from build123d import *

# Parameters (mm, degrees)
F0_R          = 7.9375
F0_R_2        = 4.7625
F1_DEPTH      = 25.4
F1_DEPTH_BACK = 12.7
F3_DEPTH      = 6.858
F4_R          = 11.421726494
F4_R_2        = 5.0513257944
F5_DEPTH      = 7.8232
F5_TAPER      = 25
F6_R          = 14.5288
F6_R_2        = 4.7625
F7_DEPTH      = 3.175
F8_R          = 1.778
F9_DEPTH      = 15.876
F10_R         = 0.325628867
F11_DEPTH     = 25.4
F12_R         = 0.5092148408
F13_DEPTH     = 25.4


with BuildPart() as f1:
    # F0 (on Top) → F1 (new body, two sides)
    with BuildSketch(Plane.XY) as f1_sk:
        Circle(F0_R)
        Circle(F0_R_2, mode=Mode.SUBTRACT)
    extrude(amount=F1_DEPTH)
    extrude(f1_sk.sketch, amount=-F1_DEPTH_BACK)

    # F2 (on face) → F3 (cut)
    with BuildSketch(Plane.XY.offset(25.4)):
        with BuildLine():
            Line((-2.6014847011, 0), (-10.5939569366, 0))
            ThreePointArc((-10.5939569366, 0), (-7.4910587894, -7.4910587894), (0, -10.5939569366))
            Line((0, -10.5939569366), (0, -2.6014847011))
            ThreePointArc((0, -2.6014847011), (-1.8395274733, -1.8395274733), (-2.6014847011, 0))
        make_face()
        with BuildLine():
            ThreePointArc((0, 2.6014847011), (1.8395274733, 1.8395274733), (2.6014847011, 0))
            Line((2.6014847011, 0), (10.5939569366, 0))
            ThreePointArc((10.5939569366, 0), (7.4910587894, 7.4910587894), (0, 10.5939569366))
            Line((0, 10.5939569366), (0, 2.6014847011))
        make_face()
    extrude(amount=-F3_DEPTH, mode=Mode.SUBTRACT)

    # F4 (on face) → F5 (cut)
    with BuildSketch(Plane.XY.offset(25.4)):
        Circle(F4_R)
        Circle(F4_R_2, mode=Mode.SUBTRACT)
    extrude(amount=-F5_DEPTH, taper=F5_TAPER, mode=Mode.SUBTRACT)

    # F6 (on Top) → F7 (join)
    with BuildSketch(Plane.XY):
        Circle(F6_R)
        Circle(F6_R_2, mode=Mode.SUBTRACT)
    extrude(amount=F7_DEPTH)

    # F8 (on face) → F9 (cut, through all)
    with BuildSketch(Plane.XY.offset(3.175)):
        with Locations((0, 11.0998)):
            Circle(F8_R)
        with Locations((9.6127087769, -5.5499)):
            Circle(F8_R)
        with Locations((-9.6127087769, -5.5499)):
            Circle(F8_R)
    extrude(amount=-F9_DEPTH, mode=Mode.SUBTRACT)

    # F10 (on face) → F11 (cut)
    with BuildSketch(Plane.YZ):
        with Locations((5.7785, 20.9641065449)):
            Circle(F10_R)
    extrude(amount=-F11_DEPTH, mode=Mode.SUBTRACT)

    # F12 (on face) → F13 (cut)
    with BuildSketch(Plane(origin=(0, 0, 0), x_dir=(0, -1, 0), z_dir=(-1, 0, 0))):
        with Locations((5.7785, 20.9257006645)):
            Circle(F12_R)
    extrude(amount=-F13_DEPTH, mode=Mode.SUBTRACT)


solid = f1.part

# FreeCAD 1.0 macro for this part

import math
import FreeCAD as App
import Part
import Sketcher
from FreeCAD import Vector
Q = App.Units.Quantity

doc = App.newDocument("Part")
body = doc.addObject("PartDesign::Body", "Body")

# Sketch on XY plane
sketch1 = doc.addObject("Sketcher::SketchObject", "Sketch")
body.addObject(sketch1)
sketch1.AttachmentSupport = (doc.XY_Plane, [""])
sketch1.MapMode = "FlatFace"
sketch1.addGeometry([
    Part.Circle(Vector(0, 0, 0), Vector(0, 0, 1), 7.9),
    Part.Circle(Vector(0, 0, 0), Vector(0, 0, 1), 4.8),
], False)
sketch1.addConstraint([
    Sketcher.Constraint("Coincident", 0, 3, -1, 1),
    Sketcher.Constraint("Coincident", 1, 3, -1, 1),
    Sketcher.Constraint("Diameter", 0, Q("0.625 in")),
    Sketcher.Constraint("Diameter", 1, Q("0.375 in")),
])
pad1 = doc.addObject("PartDesign::Pad", "Pad")
body.addObject(pad1)
pad1.Profile = sketch1
pad1.Type = "TwoLengths"
pad1.Length = Q("1 in")
pad1.Length2 = Q("0.5 in")

# Sketch on XY plane
sketch2 = doc.addObject("Sketcher::SketchObject", "Sketch001")
body.addObject(sketch2)
sketch2.AttachmentSupport = (doc.XY_Plane, [""])
sketch2.MapMode = "FlatFace"
sketch2.AttachmentOffset = App.Placement(Vector(0, 0, 1 * 25.4), App.Rotation())
sketch2.addGeometry([
    Part.LineSegment(Vector(-2.6, 0, 0), Vector(-10.6, 0, 0)),  # 0
    Part.ArcOfCircle(Part.Circle(Vector(0, 0, 0), Vector(0, 0, 1), 10.6), math.radians(180), math.radians(270)),  # 1
    Part.LineSegment(Vector(0, -10.6, 0), Vector(0, -2.6, 0)),  # 2
    Part.ArcOfCircle(Part.Circle(Vector(0, 0, 0), Vector(0, 0, 1), 2.6), math.radians(180), math.radians(270)),  # 3
    Part.ArcOfCircle(Part.Circle(Vector(0, 0, 0), Vector(0, 0, 1), 2.6), math.radians(0), math.radians(90)),  # 4
    Part.LineSegment(Vector(2.6, 0, 0), Vector(10.6, 0, 0)),  # 5
    Part.ArcOfCircle(Part.Circle(Vector(0, 0, 0), Vector(0, 0, 1), 10.6), math.radians(0), math.radians(90)),  # 6
    Part.LineSegment(Vector(0, 10.6, 0), Vector(0, 2.6, 0)),  # 7
], False)
sketch2.addConstraint([
    Sketcher.Constraint("Coincident", 0, 2, 1, 1),
    Sketcher.Constraint("Coincident", 1, 2, 2, 1),
    Sketcher.Constraint("Coincident", 2, 2, 3, 2),
    Sketcher.Constraint("Coincident", 3, 1, 0, 1),
    Sketcher.Constraint("Coincident", 4, 1, 5, 1),
    Sketcher.Constraint("Coincident", 5, 2, 6, 1),
    Sketcher.Constraint("Coincident", 6, 2, 7, 1),
    Sketcher.Constraint("Coincident", 7, 2, 4, 2),
    Sketcher.Constraint("Horizontal", 0),
    Sketcher.Constraint("Vertical", 2),
    Sketcher.Constraint("Horizontal", 5),
    Sketcher.Constraint("Vertical", 7),
    Sketcher.Constraint("Coincident", 1, 3, -1, 1),
    Sketcher.Constraint("Coincident", 3, 3, -1, 1),
    Sketcher.Constraint("Coincident", 4, 3, -1, 1),
    Sketcher.Constraint("Coincident", 6, 3, -1, 1),
    Sketcher.Constraint("Equal", 3, 4),
    Sketcher.Constraint("Equal", 1, 6),
    Sketcher.Constraint("PointOnObject", 0, 2, -1),
    Sketcher.Constraint("PointOnObject", 1, 2, -2),
    Sketcher.Constraint("PointOnObject", 4, 1, -1),
    Sketcher.Constraint("PointOnObject", 6, 2, -2),
    Sketcher.Constraint("Radius", 1, 10.593957),
    Sketcher.Constraint("Radius", 3, 2.601485),
])
pocket1 = doc.addObject("PartDesign::Pocket", "Pocket")
body.addObject(pocket1)
pocket1.Profile = sketch2
pocket1.Length = Q("0.27 in")

# Sketch on XY plane
sketch3 = doc.addObject("Sketcher::SketchObject", "Sketch002")
body.addObject(sketch3)
sketch3.AttachmentSupport = (doc.XY_Plane, [""])
sketch3.MapMode = "FlatFace"
sketch3.AttachmentOffset = App.Placement(Vector(0, 0, 1 * 25.4), App.Rotation())
sketch3.addGeometry([
    Part.Circle(Vector(0, 0, 0), Vector(0, 0, 1), 11),
    Part.Circle(Vector(0, 0, 0), Vector(0, 0, 1), 5),
], False)
sketch3.addConstraint([
    Sketcher.Constraint("Coincident", 0, 3, -1, 1),
    Sketcher.Constraint("Coincident", 1, 3, -1, 1),
    Sketcher.Constraint("Diameter", 1, 10.102652),
    Sketcher.Constraint("Diameter", 0, 22.843453),
])
pocket2 = doc.addObject("PartDesign::Pocket", "Pocket001")
body.addObject(pocket2)
pocket2.Profile = sketch3
pocket2.Length = Q("0.308 in")
pocket2.TaperAngle = 25

# Sketch on XY plane
sketch4 = doc.addObject("Sketcher::SketchObject", "Sketch003")
body.addObject(sketch4)
sketch4.AttachmentSupport = (doc.XY_Plane, [""])
sketch4.MapMode = "FlatFace"
sketch4.addGeometry([
    Part.Circle(Vector(0, 0, 0), Vector(0, 0, 1), 14.5),
    Part.Circle(Vector(0, 0, 0), Vector(0, 0, 1), 4.8),
], False)
sketch4.addConstraint([
    Sketcher.Constraint("Coincident", 0, 3, -1, 1),
    Sketcher.Constraint("Coincident", 1, 3, -1, 1),
    Sketcher.Constraint("Diameter", 0, Q("1.144 in")),
    Sketcher.Constraint("Diameter", 1, Q("0.375 in")),
])
pad2 = doc.addObject("PartDesign::Pad", "Pad001")
body.addObject(pad2)
pad2.Profile = sketch4
pad2.Length = Q("0.125 in")

# Sketch on XY plane
sketch5 = doc.addObject("Sketcher::SketchObject", "Sketch004")
body.addObject(sketch5)
sketch5.AttachmentSupport = (doc.XY_Plane, [""])
sketch5.MapMode = "FlatFace"
sketch5.AttachmentOffset = App.Placement(Vector(0, 0, 0.125 * 25.4), App.Rotation())
sketch5.addGeometry([
    Part.Circle(Vector(0, 11.1, 0), Vector(0, 0, 1), 1.8),
    Part.Circle(Vector(9.6, -5.5, 0), Vector(0, 0, 1), 1.8),
    Part.Circle(Vector(-9.6, -5.5, 0), Vector(0, 0, 1), 1.8),
], False)
sketch5.addConstraint([
    Sketcher.Constraint("Equal", 0, 1),
    Sketcher.Constraint("Equal", 1, 2),
    Sketcher.Constraint("Symmetric", 1, 3, 2, 3, -2),
    Sketcher.Constraint("PointOnObject", 0, 3, -2),
    Sketcher.Constraint("Diameter", 0, Q("0.14 in")),
    Sketcher.Constraint("DistanceY", -1, 1, 0, 3, Q("0.437 in")),
    Sketcher.Constraint("DistanceY", 1, 3, -1, 1, Q("0.2185 in")),
    Sketcher.Constraint("DistanceX", -1, 1, 1, 3, 9.612709),
])
pocket3 = doc.addObject("PartDesign::Pocket", "Pocket002")
body.addObject(pocket3)
pocket3.Profile = sketch5
pocket3.Type = "ThroughAll"

# Sketch on YZ plane
sketch6 = doc.addObject("Sketcher::SketchObject", "Sketch005")
body.addObject(sketch6)
sketch6.AttachmentSupport = (doc.YZ_Plane, [""])
sketch6.MapMode = "FlatFace"
sketch6.addGeometry(Part.Circle(Vector(5.78, 20.96, 0), Vector(0, 0, 1), 0.33), False)
sketch6.addConstraint([
    Sketcher.Constraint("Diameter", 0, 0.651258),
    Sketcher.Constraint("DistanceX", -1, 1, 0, 3, Q("0.2275 in")),
    Sketcher.Constraint("DistanceY", -1, 1, 0, 3, 20.964107),
])
pocket4 = doc.addObject("PartDesign::Pocket", "Pocket003")
body.addObject(pocket4)
pocket4.Profile = sketch6
pocket4.Length = Q("1 in")

# Sketch on YZ plane
sketch7 = doc.addObject("Sketcher::SketchObject", "Sketch006")
body.addObject(sketch7)
sketch7.AttachmentSupport = (doc.YZ_Plane, [""])
sketch7.MapMode = "FlatFace"
sketch7.addGeometry(Part.Circle(Vector(-5.8, 20.9, 0), Vector(0, 0, 1), 0.5), False)
sketch7.addConstraint([
    Sketcher.Constraint("Diameter", 0, 1.01843),
    Sketcher.Constraint("DistanceX", 0, 3, -1, 1, Q("0.2275 in")),
    Sketcher.Constraint("DistanceY", -1, 1, 0, 3, 20.925701),
])
pocket5 = doc.addObject("PartDesign::Pocket", "Pocket004")
body.addObject(pocket5)
pocket5.Profile = sketch7
pocket5.Length = Q("1 in")
pocket5.Reversed = True

doc.recompute()
